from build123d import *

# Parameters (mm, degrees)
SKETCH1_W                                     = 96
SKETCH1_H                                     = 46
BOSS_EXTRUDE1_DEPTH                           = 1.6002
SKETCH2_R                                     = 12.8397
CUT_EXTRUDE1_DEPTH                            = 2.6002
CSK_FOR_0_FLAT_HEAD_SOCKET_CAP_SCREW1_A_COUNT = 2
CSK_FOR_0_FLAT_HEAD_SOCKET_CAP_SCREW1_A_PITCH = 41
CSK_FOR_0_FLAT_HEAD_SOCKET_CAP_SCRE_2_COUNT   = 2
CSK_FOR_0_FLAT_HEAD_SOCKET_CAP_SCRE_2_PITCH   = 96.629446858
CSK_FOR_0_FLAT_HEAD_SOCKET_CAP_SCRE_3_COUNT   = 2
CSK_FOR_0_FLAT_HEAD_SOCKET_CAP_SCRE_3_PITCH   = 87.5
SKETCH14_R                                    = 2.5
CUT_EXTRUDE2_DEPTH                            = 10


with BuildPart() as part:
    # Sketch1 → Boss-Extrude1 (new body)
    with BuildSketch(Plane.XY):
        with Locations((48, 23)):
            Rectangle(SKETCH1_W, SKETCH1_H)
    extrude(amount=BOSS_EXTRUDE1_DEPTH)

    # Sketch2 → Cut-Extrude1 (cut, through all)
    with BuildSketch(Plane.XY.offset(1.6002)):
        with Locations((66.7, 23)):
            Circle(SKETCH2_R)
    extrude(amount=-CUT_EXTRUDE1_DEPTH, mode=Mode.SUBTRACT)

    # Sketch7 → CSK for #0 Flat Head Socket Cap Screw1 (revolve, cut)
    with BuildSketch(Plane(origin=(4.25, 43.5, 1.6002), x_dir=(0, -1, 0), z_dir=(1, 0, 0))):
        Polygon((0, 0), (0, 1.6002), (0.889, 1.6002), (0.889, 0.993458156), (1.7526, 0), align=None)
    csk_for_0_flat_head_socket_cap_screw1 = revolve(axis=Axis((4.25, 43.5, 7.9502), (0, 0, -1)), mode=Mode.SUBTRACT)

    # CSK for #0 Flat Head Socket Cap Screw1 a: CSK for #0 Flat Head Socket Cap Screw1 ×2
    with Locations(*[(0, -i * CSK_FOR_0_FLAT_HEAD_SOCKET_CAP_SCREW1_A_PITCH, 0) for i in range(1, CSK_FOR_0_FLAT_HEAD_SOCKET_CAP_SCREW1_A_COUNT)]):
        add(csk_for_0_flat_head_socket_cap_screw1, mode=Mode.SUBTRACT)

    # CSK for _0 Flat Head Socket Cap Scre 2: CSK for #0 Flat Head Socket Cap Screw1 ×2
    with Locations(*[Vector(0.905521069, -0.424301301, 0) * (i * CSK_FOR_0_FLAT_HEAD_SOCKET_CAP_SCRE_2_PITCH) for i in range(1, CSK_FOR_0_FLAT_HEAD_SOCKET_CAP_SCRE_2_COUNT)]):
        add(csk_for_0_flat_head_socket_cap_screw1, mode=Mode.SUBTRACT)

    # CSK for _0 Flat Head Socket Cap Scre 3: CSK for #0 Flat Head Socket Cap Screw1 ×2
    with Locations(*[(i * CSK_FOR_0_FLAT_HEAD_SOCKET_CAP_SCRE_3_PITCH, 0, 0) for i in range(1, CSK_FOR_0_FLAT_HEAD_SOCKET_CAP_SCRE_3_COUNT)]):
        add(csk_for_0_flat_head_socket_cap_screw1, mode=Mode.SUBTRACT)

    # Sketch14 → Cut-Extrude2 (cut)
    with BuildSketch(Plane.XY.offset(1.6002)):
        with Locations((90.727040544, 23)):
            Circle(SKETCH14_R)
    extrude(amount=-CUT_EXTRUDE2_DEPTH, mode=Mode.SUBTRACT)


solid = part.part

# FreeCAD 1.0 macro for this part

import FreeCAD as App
import Part
import Sketcher
Q = App.Units.Quantity


def add_polygon(sketch, points):
    """Adds a closed chain of lines whose ends are joined by coincident constraints."""
    first, n = sketch.GeometryCount, len(points)
    for a, b in zip(points, points[1:] + points[:1]):
        sketch.addGeometry(Part.LineSegment(App.Vector(*a, 0), App.Vector(*b, 0)), False)
    for i in range(n):
        sketch.addConstraint(Sketcher.Constraint("Coincident", first + i, 2, first + (i + 1) % n, 1))

doc = App.newDocument("Part")
body = doc.addObject("PartDesign::Body", "Body")

# Sketch on XY plane
sketch1 = doc.addObject("Sketcher::SketchObject", "Sketch")
body.addObject(sketch1)
sketch1.AttachmentSupport = (doc.XY_Plane, [""])
sketch1.MapMode = "FlatFace"
add_polygon(sketch1, [(0, 46), (0, 0), (96, 0), (96, 46)])  # lines 0-3
sketch1.addConstraint([
    Sketcher.Constraint("Vertical", 0),
    Sketcher.Constraint("Horizontal", 1),
    Sketcher.Constraint("Vertical", 2),
    Sketcher.Constraint("Horizontal", 3),
    Sketcher.Constraint("Coincident", 0, 2, -1, 1),
    Sketcher.Constraint("DistanceX", 1, 1, 1, 2, Q("96 mm")),
    Sketcher.Constraint("DistanceY", 0, 2, 0, 1, Q("46 mm")),
])
pad1 = doc.addObject("PartDesign::Pad", "Pad")
body.addObject(pad1)
pad1.Profile = sketch1
pad1.Length = 1.6002

# Sketch on XY plane
sketch2 = doc.addObject("Sketcher::SketchObject", "Sketch001")
body.addObject(sketch2)
sketch2.AttachmentSupport = (doc.XY_Plane, [""])
sketch2.MapMode = "FlatFace"
sketch2.AttachmentOffset = App.Placement(App.Vector(0, 0, 1.6002), App.Rotation())
sketch2.addGeometry(Part.Circle(App.Vector(67, 23, 0), App.Vector(0, 0, 1), 13), False)
sketch2.addConstraint([
    Sketcher.Constraint("DistanceY", -1, 1, 0, 3, Q("23 mm")),
    Sketcher.Constraint("Diameter", 0, Q("25.6794 mm")),
    Sketcher.Constraint("DistanceX", -1, 1, 0, 3, Q("66.7 mm")),
])
pocket1 = doc.addObject("PartDesign::Pocket", "Pocket")
body.addObject(pocket1)
pocket1.Profile = sketch2
pocket1.Type = "ThroughAll"

# Sketch on YZ plane
sketch3 = doc.addObject("Sketcher::SketchObject", "Sketch002")
body.addObject(sketch3)
sketch3.AttachmentSupport = (doc.YZ_Plane, [""])
sketch3.MapMode = "FlatFace"
sketch3.AttachmentOffset = App.Placement(App.Vector(0, 0, 4.25), App.Rotation())
add_polygon(sketch3, [(43.5, 0), (43.5, 1.6), (41.7, 1.6), (42.6, 0.6), (42.6, 0)])  # lines 0-4
sketch3.addGeometry(Part.LineSegment(App.Vector(43.5, 1.6, 0), App.Vector(43.5, 0, 0)), True)  # axis
sketch3.addConstraint([
    Sketcher.Constraint("Vertical", 0),
    Sketcher.Constraint("Horizontal", 1),
    Sketcher.Constraint("Vertical", 3),
    Sketcher.Constraint("Horizontal", 4),
    Sketcher.Constraint("Vertical", 5),
    Sketcher.Constraint("Coincident", 5, 1, 0, 2),
    Sketcher.Constraint("PointOnObject", 3, 2, -1),
    Sketcher.Constraint("PointOnObject", 5, 2, -1),
    Sketcher.Constraint("Angle", 2, Q("-49 deg")),
    Sketcher.Constraint("DistanceX", -1, 1, 0, 2, Q("43.5 mm")),
    Sketcher.Constraint("DistanceX", 4, 1, 4, 2, Q("0.889 mm")),
    Sketcher.Constraint("DistanceX", 1, 2, 1, 1, Q("1.7526 mm")),
    Sketcher.Constraint("DistanceY", 0, 1, 0, 2, Q("1.6002 mm")),
])
groove = doc.addObject("PartDesign::Groove", "Groove")
body.addObject(groove)
groove.Profile = sketch3
groove.ReferenceAxis = (sketch3, ["Axis0"])
groove.Angle = 360
doc.recompute()

linearpattern = doc.addObject("PartDesign::LinearPattern", "LinearPattern")
body.addObject(linearpattern)
linearpattern.Originals = [groove]
linearpattern.Direction = (doc.Y_Axis, [""])
linearpattern.Mode = "offset"
linearpattern.Offset = 41
linearpattern.Occurrences = 2
linearpattern.Reversed = True
body.Tip = linearpattern
doc.recompute()

datumline = doc.addObject("PartDesign::Line", "DatumLine")
body.addObject(datumline)
datumline.Placement = App.Placement(App.Vector(0, 0, 0), App.Rotation(App.Vector(0, 0, 1), App.Vector(0.905521069, -0.424301301, 0)))
linearpattern2 = doc.addObject("PartDesign::LinearPattern", "LinearPattern001")
body.addObject(linearpattern2)
linearpattern2.Originals = [groove]
linearpattern2.Direction = (datumline, [""])
linearpattern2.Mode = "offset"
linearpattern2.Offset = 96.629447
linearpattern2.Occurrences = 2
body.Tip = linearpattern2
doc.recompute()

linearpattern3 = doc.addObject("PartDesign::LinearPattern", "LinearPattern002")
body.addObject(linearpattern3)
linearpattern3.Originals = [groove]
linearpattern3.Direction = (doc.X_Axis, [""])
linearpattern3.Mode = "offset"
linearpattern3.Offset = 87.5
linearpattern3.Occurrences = 2
body.Tip = linearpattern3

# Sketch on XY plane
sketch4 = doc.addObject("Sketcher::SketchObject", "Sketch003")
body.addObject(sketch4)
sketch4.AttachmentSupport = (doc.XY_Plane, [""])
sketch4.MapMode = "FlatFace"
sketch4.AttachmentOffset = App.Placement(App.Vector(0, 0, 1.6002), App.Rotation())
sketch4.addGeometry(Part.Circle(App.Vector(90.7, 23, 0), App.Vector(0, 0, 1), 2.5), False)
sketch4.addConstraint([
    Sketcher.Constraint("Diameter", 0, Q("5 mm")),
    Sketcher.Constraint("DistanceY", -1, 1, 0, 3, Q("23 mm")),
    Sketcher.Constraint("DistanceX", -1, 1, 0, 3, Q("90.727041 mm")),
])
pocket2 = doc.addObject("PartDesign::Pocket", "Pocket001")
body.addObject(pocket2)
pocket2.Profile = sketch4
pocket2.Length = 10

doc.recompute()
